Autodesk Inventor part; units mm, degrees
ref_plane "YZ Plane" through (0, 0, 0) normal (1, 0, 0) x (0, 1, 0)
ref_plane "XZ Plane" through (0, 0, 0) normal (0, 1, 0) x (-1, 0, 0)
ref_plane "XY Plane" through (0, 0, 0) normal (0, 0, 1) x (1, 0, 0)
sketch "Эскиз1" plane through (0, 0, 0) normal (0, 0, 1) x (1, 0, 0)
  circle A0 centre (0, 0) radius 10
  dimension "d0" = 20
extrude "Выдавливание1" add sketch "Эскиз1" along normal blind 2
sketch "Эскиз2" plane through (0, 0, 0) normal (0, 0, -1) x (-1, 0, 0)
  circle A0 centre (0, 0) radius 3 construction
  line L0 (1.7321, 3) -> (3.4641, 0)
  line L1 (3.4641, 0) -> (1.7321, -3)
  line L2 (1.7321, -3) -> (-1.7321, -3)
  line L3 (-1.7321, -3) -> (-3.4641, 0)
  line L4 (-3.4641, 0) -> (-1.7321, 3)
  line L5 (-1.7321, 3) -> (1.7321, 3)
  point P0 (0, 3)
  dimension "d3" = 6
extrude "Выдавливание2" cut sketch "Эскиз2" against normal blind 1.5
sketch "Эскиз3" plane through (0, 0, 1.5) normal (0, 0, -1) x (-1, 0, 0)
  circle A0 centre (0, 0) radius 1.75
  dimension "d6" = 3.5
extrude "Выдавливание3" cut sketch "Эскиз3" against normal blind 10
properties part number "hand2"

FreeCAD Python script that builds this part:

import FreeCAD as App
import Part
import Sketcher
from FreeCAD import Vector
Q = App.Units.Quantity


def add_polygon(sketch, points):
    """Adds a closed chain of lines whose ends are joined by coincident constraints."""
    first, n = sketch.GeometryCount, len(points)
    for a, b in zip(points, points[1:] + points[:1]):
        sketch.addGeometry(Part.LineSegment(App.Vector(*a, 0), App.Vector(*b, 0)), False)
    for i in range(n):
        sketch.addConstraint(Sketcher.Constraint("Coincident", first + i, 2, first + (i + 1) % n, 1))

doc = App.newDocument("Part")
body = doc.addObject("PartDesign::Body", "Body")

# Sketch on XY plane
sketch1 = body.newObject("Sketcher::SketchObject", "Sketch")
sketch1.AttachmentSupport = (doc.getObject("XY_Plane"), [""])
sketch1.MapMode = "FlatFace"
sketch1.addGeometry(Part.Circle(Vector(0, 0, 0), Vector(0, 0, 1), 10), False)
sketch1.addConstraint(Sketcher.Constraint("Coincident", 0, 3, -1, 1))
sketch1.addConstraint(Sketcher.Constraint("Diameter", 0, Q("20 mm")))
pad1 = body.newObject("PartDesign::Pad", "Pad")
pad1.Profile = sketch1
pad1.Length = 2

# Sketch on XY plane
sketch2 = body.newObject("Sketcher::SketchObject", "Sketch001")
sketch2.AttachmentSupport = (doc.getObject("XY_Plane"), [""])
sketch2.MapMode = "FlatFace"
add_polygon(sketch2, [(-3.5, 0), (-1.7, 3), (1.7, 3), (3.5, 0), (1.7, -3), (-1.7, -3)])  # lines 0-5
sketch2.addConstraint(Sketcher.Constraint("Horizontal", 1))
sketch2.addConstraint(Sketcher.Constraint("Horizontal", 4))
sketch2.addConstraint(Sketcher.Constraint("Symmetric", 0, 2, 3, 2, -1, 1))
sketch2.addConstraint(Sketcher.Constraint("Symmetric", 2, 2, 5, 2, -1, 1))
sketch2.addConstraint(Sketcher.Constraint("PointOnObject", 2, 2, -1))
sketch2.addConstraint(Sketcher.Constraint("Parallel", 2, 5))
sketch2.addConstraint(Sketcher.Constraint("Vertical", 1, 2, 3, 2))
sketch2.addConstraint(Sketcher.Constraint("DistanceY", 3, 2, 1, 2, Q("6 mm")))
sketch2.addConstraint(Sketcher.Constraint("Angle", 0, Q("60.0007 deg")))
sketch2.addConstraint(Sketcher.Constraint("DistanceX", 1, 1, 1, 2, Q("3.4642 mm")))
pocket1 = body.newObject("PartDesign::Pocket", "Pocket")
pocket1.Profile = sketch2
pocket1.Length = 1.5
pocket1.Reversed = True

# Sketch on XY plane
sketch3 = body.newObject("Sketcher::SketchObject", "Sketch002")
sketch3.AttachmentSupport = (doc.getObject("XY_Plane"), [""])
sketch3.MapMode = "FlatFace"
sketch3.AttachmentOffset = App.Placement(Vector(0, 0, 1.5), App.Rotation())
sketch3.addGeometry(Part.Circle(Vector(0, 0, 0), Vector(0, 0, 1), 1.8), False)
sketch3.addConstraint(Sketcher.Constraint("Coincident", 0, 3, -1, 1))
sketch3.addConstraint(Sketcher.Constraint("Diameter", 0, Q("3.5 mm")))
pocket2 = body.newObject("PartDesign::Pocket", "Pocket001")
pocket2.Profile = sketch3
pocket2.Length = 10
pocket2.Reversed = True

doc.recompute()
